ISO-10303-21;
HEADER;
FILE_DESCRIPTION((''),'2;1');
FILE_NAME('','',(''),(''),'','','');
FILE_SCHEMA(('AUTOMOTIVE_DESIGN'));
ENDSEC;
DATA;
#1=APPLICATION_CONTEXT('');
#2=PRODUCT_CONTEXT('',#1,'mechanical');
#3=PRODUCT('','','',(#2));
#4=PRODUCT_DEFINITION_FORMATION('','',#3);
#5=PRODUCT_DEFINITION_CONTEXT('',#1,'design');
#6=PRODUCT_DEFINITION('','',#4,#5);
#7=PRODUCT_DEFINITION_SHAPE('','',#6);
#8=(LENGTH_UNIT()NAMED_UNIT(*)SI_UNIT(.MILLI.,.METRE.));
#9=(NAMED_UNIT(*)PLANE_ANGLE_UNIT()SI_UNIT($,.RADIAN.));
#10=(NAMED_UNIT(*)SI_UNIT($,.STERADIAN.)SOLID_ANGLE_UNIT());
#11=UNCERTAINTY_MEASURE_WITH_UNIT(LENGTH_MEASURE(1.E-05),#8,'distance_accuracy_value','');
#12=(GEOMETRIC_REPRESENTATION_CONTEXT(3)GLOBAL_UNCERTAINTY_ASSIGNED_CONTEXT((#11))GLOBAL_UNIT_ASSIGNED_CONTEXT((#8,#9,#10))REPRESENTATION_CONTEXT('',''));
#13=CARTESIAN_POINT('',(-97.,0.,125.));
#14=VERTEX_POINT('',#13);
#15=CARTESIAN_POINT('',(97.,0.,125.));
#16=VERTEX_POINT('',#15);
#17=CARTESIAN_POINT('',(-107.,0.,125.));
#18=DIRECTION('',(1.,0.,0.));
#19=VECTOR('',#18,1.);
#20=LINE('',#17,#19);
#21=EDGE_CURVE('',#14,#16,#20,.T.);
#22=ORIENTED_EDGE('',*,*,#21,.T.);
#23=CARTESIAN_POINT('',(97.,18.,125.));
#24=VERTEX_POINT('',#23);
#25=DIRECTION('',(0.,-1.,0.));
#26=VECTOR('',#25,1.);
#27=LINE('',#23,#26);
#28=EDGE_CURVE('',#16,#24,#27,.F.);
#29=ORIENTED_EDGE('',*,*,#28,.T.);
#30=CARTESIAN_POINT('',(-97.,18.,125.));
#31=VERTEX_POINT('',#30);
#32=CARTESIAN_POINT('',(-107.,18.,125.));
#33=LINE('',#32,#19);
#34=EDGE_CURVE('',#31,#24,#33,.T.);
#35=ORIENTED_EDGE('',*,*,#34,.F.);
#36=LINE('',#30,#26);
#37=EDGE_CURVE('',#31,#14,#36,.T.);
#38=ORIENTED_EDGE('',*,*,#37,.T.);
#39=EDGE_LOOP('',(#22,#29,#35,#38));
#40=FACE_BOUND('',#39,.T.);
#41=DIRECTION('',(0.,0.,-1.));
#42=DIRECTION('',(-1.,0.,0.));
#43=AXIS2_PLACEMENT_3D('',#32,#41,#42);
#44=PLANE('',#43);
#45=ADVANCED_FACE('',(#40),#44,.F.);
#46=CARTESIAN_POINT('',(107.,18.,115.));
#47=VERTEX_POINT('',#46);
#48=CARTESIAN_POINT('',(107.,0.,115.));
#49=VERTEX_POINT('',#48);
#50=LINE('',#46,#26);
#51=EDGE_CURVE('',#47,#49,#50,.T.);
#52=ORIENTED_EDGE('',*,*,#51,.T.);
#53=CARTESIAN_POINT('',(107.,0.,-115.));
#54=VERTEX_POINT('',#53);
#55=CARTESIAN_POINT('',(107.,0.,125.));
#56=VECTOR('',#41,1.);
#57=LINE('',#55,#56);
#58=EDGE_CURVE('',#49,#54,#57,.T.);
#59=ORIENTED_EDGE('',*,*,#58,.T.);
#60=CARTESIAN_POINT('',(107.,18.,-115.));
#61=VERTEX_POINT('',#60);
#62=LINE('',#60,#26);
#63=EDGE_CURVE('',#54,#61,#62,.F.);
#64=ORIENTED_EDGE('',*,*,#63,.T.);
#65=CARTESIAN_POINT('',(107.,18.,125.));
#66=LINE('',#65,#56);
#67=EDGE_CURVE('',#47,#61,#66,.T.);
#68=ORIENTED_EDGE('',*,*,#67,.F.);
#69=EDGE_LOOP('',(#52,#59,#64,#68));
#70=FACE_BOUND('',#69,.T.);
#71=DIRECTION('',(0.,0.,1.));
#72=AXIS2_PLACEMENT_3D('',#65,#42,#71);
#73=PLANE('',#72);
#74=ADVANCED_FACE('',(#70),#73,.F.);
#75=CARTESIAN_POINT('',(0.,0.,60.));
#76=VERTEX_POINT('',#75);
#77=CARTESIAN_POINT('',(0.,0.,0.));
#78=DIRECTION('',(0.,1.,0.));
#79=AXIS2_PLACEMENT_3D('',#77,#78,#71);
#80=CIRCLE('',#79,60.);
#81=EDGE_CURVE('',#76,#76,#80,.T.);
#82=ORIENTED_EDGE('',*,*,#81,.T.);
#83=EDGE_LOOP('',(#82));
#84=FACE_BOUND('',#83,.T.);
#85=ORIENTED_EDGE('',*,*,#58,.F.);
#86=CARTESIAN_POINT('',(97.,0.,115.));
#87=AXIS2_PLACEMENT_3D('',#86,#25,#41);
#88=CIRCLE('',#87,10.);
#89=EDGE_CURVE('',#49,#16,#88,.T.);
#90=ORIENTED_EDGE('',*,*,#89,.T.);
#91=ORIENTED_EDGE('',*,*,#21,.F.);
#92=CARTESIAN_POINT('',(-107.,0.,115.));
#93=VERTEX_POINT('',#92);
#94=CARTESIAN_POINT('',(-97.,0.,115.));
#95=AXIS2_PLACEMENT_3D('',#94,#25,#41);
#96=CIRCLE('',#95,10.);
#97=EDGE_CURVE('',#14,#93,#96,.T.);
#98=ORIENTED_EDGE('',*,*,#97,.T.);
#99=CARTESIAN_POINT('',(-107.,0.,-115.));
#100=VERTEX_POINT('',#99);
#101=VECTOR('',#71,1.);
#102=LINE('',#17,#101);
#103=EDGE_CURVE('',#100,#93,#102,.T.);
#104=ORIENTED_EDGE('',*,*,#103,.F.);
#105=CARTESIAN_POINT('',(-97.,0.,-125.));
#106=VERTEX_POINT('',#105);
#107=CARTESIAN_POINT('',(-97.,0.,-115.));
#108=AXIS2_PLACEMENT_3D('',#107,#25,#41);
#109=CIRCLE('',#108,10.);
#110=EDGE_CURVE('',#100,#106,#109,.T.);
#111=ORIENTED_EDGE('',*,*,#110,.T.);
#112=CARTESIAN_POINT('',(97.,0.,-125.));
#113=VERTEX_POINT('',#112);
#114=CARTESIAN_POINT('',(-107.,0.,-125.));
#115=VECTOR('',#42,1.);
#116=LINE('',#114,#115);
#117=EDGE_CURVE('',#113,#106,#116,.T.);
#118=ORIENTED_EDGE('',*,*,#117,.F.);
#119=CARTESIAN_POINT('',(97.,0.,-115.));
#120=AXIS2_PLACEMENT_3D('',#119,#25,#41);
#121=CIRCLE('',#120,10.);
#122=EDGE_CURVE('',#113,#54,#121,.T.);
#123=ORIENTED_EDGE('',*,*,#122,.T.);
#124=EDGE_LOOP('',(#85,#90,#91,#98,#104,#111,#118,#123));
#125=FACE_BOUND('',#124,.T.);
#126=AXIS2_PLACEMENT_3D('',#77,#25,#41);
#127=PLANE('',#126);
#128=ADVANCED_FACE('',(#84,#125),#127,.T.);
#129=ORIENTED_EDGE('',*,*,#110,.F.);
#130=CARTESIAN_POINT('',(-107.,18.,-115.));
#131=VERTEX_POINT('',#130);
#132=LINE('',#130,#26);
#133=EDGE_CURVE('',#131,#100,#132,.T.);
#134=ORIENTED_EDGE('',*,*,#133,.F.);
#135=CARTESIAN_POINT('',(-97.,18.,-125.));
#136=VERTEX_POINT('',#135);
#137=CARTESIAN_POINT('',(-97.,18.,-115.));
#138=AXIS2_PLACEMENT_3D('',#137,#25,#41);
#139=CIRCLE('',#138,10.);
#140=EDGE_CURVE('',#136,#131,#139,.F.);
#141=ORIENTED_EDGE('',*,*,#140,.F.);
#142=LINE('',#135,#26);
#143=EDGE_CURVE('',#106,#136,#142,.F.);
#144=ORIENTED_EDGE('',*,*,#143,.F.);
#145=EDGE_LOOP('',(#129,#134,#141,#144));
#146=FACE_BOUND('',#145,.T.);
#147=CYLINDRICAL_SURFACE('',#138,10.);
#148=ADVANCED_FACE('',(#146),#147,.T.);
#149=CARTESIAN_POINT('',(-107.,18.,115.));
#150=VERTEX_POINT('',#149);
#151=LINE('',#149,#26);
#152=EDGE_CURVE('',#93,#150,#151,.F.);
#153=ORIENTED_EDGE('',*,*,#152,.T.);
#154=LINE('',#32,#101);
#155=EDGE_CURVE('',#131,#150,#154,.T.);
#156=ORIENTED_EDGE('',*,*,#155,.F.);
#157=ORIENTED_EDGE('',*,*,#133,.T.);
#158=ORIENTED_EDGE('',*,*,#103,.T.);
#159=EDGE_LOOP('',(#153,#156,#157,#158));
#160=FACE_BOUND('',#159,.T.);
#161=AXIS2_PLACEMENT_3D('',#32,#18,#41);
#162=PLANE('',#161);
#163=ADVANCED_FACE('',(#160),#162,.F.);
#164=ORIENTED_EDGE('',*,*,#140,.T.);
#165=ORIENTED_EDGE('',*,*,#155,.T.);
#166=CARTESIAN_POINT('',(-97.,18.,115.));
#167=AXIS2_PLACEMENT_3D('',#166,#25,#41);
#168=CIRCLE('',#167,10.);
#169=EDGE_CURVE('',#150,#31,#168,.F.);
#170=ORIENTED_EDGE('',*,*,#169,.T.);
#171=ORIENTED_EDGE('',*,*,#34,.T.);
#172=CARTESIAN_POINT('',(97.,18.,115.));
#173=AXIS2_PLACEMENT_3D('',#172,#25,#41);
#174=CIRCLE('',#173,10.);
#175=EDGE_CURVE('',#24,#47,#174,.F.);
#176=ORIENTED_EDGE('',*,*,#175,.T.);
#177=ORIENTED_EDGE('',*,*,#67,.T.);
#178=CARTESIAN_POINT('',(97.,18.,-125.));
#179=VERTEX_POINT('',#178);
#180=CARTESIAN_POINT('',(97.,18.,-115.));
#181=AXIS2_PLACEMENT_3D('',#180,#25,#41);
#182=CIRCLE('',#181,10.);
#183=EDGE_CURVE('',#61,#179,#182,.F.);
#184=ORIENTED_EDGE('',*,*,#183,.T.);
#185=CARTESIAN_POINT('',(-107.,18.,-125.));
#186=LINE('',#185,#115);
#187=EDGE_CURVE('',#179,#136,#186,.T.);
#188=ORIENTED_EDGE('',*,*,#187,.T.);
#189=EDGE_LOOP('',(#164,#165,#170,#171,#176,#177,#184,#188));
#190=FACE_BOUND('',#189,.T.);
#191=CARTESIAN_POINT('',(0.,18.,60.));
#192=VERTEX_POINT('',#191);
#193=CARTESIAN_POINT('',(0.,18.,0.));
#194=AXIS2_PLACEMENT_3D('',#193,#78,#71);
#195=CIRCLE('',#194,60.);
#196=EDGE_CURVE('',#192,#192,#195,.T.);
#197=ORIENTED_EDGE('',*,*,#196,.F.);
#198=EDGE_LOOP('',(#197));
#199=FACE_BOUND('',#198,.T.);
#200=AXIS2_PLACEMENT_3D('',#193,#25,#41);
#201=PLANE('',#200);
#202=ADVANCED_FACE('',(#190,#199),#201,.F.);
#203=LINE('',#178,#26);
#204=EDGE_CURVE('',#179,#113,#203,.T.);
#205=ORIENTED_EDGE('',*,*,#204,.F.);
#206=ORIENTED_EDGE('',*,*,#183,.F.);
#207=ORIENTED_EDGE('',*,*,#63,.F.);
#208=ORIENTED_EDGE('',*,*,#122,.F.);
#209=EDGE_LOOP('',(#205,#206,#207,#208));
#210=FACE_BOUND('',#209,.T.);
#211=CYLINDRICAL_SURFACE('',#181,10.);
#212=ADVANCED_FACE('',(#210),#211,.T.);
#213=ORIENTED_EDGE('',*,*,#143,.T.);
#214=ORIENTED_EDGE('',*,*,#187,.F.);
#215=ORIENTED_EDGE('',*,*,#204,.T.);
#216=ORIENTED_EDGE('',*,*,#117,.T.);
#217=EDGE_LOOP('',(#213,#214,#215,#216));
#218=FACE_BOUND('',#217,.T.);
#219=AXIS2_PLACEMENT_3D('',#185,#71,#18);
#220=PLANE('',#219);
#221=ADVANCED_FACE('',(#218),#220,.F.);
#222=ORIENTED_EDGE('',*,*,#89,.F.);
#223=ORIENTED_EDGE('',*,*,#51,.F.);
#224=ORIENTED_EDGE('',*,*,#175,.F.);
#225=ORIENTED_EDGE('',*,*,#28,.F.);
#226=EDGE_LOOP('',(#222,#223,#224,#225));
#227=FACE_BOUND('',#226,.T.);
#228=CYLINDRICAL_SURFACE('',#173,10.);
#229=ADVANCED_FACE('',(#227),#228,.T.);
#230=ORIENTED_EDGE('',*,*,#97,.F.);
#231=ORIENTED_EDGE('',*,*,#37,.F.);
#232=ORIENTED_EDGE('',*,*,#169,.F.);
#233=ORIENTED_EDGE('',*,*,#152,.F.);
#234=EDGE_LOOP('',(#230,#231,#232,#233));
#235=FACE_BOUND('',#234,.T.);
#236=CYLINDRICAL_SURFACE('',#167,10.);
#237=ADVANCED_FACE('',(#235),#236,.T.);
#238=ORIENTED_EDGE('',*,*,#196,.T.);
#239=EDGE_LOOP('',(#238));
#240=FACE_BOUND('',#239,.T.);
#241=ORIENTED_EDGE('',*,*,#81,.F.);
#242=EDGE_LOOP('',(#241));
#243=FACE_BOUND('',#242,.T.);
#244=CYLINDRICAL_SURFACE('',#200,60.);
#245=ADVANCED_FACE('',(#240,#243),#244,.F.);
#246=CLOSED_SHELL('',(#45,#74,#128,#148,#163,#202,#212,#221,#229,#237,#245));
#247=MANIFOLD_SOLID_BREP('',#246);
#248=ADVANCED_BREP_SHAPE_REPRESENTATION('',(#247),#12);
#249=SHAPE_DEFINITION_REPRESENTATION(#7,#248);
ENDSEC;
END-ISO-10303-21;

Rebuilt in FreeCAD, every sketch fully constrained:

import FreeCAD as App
import Part
import Sketcher
from FreeCAD import Vector


def edges_at(feature, points):
    """Names of the edges that pass closest to the given points."""
    edges = feature.Shape.Edges
    near = lambda p: min(range(len(edges)), key=lambda i: edges[i].distToShape(Part.Vertex(*p))[0])
    return sorted({f"Edge{near(p) + 1}" for p in points})


def add_polygon(sketch, points):
    """Adds a closed chain of lines whose ends are joined by coincident constraints."""
    first, n = sketch.GeometryCount, len(points)
    for a, b in zip(points, points[1:] + points[:1]):
        sketch.addGeometry(Part.LineSegment(App.Vector(*a, 0), App.Vector(*b, 0)), False)
    for i in range(n):
        sketch.addConstraint(Sketcher.Constraint("Coincident", first + i, 2, first + (i + 1) % n, 1))

doc = App.newDocument("Part")
body = doc.addObject("PartDesign::Body", "Body")

sketch1 = body.newObject("Sketcher::SketchObject", "Sketch")
sketch1.AttachmentSupport = (doc.getObject("XZ_Plane"), [""])
sketch1.MapMode = "FlatFace"
add_polygon(sketch1, [(-107, -125), (-107, 125), (107, 125), (107, -125)])
sketch1.addGeometry(Part.Circle(Vector(0, 0, 0), Vector(0, 0, 1), 60), False)
sketch1.addConstraint([
    Sketcher.Constraint("Vertical", 0),
    Sketcher.Constraint("Horizontal", 1),
    Sketcher.Constraint("Vertical", 2),
    Sketcher.Constraint("Horizontal", 3),
    Sketcher.Constraint("Coincident", 4, 3, -1, 1),
    Sketcher.Constraint("Symmetric", 0, 2, 2, 2, -1, 1),
    Sketcher.Constraint("Diameter", 4, 120.0),
    Sketcher.Constraint("DistanceX", 1, 1, 1, 2, 214.0),
    Sketcher.Constraint("DistanceY", 0, 1, 0, 2, 250.0),
])
pad1 = body.newObject("PartDesign::Pad", "Pad")
pad1.Profile = sketch1
pad1.Length = 18
pad1.Reversed = True
doc.recompute()

fillet = body.newObject("PartDesign::Fillet", "Fillet")
fillet.Base = (pad1, edges_at(pad1, [
    (-107, 9, -125),
    (107, 9, -125),
    (107, 9, 125),
    (-107, 9, 125),
]))
fillet.Radius = 10

doc.recompute()
